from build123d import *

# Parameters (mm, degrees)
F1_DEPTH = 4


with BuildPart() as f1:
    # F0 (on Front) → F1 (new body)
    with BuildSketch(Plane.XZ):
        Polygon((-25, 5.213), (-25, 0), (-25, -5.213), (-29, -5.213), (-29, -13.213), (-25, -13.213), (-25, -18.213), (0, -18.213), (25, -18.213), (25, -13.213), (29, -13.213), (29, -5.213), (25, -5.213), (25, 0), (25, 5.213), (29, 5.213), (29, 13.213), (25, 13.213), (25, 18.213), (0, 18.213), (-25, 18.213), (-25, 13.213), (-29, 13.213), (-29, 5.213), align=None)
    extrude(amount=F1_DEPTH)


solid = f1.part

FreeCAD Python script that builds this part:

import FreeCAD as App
import Part
import Sketcher

V = App.Vector
Q = App.Units.Quantity


def add_polygon(sketch, points):
    """Adds a closed chain of lines whose ends are joined by coincident constraints."""
    first, n = sketch.GeometryCount, len(points)
    for a, b in zip(points, points[1:] + points[:1]):
        sketch.addGeometry(Part.LineSegment(App.Vector(*a, 0), App.Vector(*b, 0)), False)
    for i in range(n):
        sketch.addConstraint(Sketcher.Constraint("Coincident", first + i, 2, first + (i + 1) % n, 1))

doc = App.newDocument("Part")
body = doc.addObject("PartDesign::Body", "Body")

# Sketch on XZ plane
sketch1 = body.newObject("Sketcher::SketchObject", "Sketch")
sketch1.AttachmentSupport = (doc.getObject("XZ_Plane"), [""])
sketch1.MapMode = "FlatFace"
add_polygon(sketch1, [(-25, 5.2), (-25, -5.2), (-29, -5.2), (-29, -13.2), (-25, -13.2), (-25, -18.2), (25, -18.2), (25, -13.2), (29, -13.2), (29, -5.2), (25, -5.2), (25, 5.2), (29, 5.2), (29, 13.2), (25, 13.2), (25, 18.2), (-25, 18.2), (-25, 13.2), (-29, 13.2), (-29, 5.2)])  # lines 0-19
sketch1.addConstraint(Sketcher.Constraint("Vertical", 0))
sketch1.addConstraint(Sketcher.Constraint("Horizontal", 1))
sketch1.addConstraint(Sketcher.Constraint("Vertical", 2))
sketch1.addConstraint(Sketcher.Constraint("Horizontal", 3))
sketch1.addConstraint(Sketcher.Constraint("Vertical", 4))
sketch1.addConstraint(Sketcher.Constraint("Horizontal", 5))
sketch1.addConstraint(Sketcher.Constraint("Vertical", 6))
sketch1.addConstraint(Sketcher.Constraint("Horizontal", 7))
sketch1.addConstraint(Sketcher.Constraint("Vertical", 8))
sketch1.addConstraint(Sketcher.Constraint("Horizontal", 9))
sketch1.addConstraint(Sketcher.Constraint("Vertical", 10))
sketch1.addConstraint(Sketcher.Constraint("Horizontal", 11))
sketch1.addConstraint(Sketcher.Constraint("Vertical", 12))
sketch1.addConstraint(Sketcher.Constraint("Horizontal", 13))
sketch1.addConstraint(Sketcher.Constraint("Vertical", 14))
sketch1.addConstraint(Sketcher.Constraint("Horizontal", 15))
sketch1.addConstraint(Sketcher.Constraint("Vertical", 16))
sketch1.addConstraint(Sketcher.Constraint("Horizontal", 17))
sketch1.addConstraint(Sketcher.Constraint("Vertical", 18))
sketch1.addConstraint(Sketcher.Constraint("Horizontal", 19))
sketch1.addConstraint(Sketcher.Constraint("Symmetric", 0, 2, 10, 2, -1, 1))
sketch1.addConstraint(Sketcher.Constraint("Symmetric", 2, 2, 12, 2, -1, 1))
sketch1.addConstraint(Sketcher.Constraint("Symmetric", 4, 2, 14, 2, -1, 1))
sketch1.addConstraint(Sketcher.Constraint("Symmetric", 6, 2, 16, 2, -1, 1))
sketch1.addConstraint(Sketcher.Constraint("Symmetric", 8, 2, 18, 2, -1, 1))
sketch1.addConstraint(Sketcher.Constraint("Symmetric", 3, 2, 6, 2, -2))
sketch1.addConstraint(Sketcher.Constraint("Symmetric", 1, 2, 8, 2, -2))
sketch1.addConstraint(Sketcher.Constraint("Vertical", 0, 2, 3, 2))
sketch1.addConstraint(Sketcher.Constraint("DistanceX", 1, 2, 1, 1, Q("4 mm")))
sketch1.addConstraint(Sketcher.Constraint("DistanceX", 5, 1, 5, 2, Q("50 mm")))
sketch1.addConstraint(Sketcher.Constraint("DistanceY", 2, 2, 2, 1, Q("8 mm")))
sketch1.addConstraint(Sketcher.Constraint("DistanceY", 4, 2, 4, 1, Q("5 mm")))
sketch1.addConstraint(Sketcher.Constraint("DistanceY", 0, 2, 0, 1, Q("10.426 mm")))
pad1 = body.newObject("PartDesign::Pad", "Pad")
pad1.Profile = sketch1
pad1.Length = 4

doc.recompute()
